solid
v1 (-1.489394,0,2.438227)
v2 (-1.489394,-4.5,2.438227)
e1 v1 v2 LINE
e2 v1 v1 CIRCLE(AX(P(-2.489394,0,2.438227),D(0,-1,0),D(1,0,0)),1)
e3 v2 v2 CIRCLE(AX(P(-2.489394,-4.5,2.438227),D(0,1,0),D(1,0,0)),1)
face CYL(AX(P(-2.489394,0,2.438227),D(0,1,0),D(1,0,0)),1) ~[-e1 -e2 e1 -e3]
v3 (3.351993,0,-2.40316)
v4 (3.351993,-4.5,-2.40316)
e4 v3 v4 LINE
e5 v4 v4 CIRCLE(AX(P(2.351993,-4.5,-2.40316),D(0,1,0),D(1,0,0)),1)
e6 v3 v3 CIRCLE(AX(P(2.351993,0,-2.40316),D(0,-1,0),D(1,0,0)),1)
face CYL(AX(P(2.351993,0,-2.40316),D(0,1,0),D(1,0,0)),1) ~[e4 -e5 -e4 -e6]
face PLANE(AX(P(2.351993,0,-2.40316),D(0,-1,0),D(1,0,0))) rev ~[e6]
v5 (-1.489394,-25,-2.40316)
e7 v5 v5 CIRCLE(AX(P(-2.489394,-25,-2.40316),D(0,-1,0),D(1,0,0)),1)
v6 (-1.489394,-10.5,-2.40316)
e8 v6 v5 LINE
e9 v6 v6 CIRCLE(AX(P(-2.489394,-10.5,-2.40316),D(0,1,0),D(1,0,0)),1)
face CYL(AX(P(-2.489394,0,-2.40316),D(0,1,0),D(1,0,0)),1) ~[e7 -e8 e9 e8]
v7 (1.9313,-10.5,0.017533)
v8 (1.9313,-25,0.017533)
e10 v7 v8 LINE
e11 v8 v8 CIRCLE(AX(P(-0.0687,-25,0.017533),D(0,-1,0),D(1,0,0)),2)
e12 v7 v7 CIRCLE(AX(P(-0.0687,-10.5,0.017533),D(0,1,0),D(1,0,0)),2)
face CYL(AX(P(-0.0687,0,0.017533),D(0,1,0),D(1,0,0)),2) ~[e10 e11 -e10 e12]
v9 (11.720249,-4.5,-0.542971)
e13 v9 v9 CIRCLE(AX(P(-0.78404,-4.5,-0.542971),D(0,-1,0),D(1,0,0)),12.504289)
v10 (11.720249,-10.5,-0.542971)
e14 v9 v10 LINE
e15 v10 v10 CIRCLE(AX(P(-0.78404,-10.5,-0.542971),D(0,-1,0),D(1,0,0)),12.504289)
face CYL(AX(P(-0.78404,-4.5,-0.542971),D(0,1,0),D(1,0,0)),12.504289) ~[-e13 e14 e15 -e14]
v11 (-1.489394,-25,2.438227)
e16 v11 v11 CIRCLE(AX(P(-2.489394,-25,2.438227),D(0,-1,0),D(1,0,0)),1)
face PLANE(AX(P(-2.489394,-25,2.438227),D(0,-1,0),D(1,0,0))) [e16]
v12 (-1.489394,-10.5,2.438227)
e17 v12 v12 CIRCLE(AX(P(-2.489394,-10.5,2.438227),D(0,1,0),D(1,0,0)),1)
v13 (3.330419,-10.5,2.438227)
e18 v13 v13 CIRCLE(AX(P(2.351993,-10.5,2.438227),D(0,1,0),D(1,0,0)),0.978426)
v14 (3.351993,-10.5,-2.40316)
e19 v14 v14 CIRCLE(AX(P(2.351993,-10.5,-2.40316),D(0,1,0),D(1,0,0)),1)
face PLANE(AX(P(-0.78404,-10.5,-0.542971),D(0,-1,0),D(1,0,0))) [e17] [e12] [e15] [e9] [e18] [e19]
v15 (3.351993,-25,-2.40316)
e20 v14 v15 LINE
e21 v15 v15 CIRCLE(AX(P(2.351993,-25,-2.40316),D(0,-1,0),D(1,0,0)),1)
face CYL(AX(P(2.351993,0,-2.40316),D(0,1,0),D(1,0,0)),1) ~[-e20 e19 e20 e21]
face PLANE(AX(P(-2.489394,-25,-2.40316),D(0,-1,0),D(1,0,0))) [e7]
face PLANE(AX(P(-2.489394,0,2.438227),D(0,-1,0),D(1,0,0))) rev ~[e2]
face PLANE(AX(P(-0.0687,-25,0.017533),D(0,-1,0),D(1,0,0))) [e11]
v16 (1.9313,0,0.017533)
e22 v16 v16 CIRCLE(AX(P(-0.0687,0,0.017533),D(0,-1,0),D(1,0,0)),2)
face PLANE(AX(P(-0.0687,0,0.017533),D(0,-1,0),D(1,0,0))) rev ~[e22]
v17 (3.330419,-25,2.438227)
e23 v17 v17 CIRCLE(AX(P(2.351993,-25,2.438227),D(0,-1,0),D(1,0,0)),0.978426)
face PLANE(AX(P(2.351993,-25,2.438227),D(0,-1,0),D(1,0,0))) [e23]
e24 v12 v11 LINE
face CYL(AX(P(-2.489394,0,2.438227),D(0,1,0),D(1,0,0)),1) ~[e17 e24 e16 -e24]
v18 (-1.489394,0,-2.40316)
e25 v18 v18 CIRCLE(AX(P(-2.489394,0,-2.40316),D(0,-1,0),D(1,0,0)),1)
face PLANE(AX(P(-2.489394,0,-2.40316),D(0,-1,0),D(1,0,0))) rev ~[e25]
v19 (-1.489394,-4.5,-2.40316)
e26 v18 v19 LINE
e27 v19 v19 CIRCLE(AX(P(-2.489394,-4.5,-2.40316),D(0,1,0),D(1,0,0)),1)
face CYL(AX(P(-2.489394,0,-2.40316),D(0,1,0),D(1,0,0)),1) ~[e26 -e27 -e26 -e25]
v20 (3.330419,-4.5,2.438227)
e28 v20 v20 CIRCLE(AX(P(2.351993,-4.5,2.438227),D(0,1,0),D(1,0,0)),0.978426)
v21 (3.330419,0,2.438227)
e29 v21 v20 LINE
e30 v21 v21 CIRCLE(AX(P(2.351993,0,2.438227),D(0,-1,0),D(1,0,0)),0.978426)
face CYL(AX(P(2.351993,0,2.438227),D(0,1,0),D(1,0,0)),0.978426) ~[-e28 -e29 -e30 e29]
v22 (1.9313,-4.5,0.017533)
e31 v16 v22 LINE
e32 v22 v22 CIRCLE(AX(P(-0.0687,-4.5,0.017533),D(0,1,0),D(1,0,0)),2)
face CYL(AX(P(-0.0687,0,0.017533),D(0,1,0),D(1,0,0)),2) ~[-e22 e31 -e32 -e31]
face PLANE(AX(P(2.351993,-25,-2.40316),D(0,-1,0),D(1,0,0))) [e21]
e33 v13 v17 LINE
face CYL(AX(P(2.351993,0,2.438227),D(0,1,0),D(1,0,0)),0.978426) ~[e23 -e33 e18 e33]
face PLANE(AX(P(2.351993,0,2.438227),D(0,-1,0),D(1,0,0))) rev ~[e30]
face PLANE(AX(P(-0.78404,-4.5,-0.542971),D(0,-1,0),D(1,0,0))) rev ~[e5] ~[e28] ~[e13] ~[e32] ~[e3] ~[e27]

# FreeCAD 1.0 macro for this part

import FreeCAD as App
import Part
import Sketcher
from FreeCAD import Vector
Q = App.Units.Quantity

doc = App.newDocument("Part")
body = doc.addObject("PartDesign::Body", "Body")

sketch1 = body.newObject("Sketcher::SketchObject", "Sketch")
sketch1.AttachmentSupport = (doc.getObject("XZ_Plane"), [""])
sketch1.MapMode = "FlatFace"
sketch1.addGeometry(Part.Circle(Vector(-14, 23, 0), Vector(0, 0, 1), 13), False)
sketch1.addConstraint([
    Sketcher.Constraint("Diameter", 0, Q("25.008578 mm")),
    Sketcher.Constraint("DistanceX", 0, 3, -1, 1, Q("13.58404 mm")),
    Sketcher.Constraint("DistanceY", -1, 1, 0, 3, Q("22.957029 mm")),
])
pad1 = body.newObject("PartDesign::Pad", "Pad")
pad1.Profile = sketch1
pad1.Length = 6
body2 = doc.addObject("PartDesign::Body", "Body001")
doc.recompute()

body.Placement = App.Placement(Vector(12.8, -4.5, -23.5), App.Rotation(Vector(0, 0, 1), 0))
boolean = body2.newObject("PartDesign::Boolean", "Boolean")
boolean.Type = "Fuse"
boolean.addObjects([body])

sketch2 = body2.newObject("Sketcher::SketchObject", "Sketch001")
sketch2.AttachmentSupport = (doc.getObject("XZ_Plane001"), [""])
sketch2.MapMode = "FlatFace"
sketch2.addGeometry([
    Part.Circle(Vector(-2.5, 2.4, 0), Vector(0, 0, 1), 1),
    Part.Circle(Vector(2.4, 2.4, 0), Vector(0, 0, 1), 1),
    Part.Circle(Vector(-2.5, -2.4, 0), Vector(0, 0, 1), 1),
    Part.Circle(Vector(2.4, -2.4, 0), Vector(0, 0, 1), 1),
    Part.Circle(Vector(-0.1, 0, 0), Vector(0, 0, 1), 2),
], False)
sketch2.addConstraint([
    Sketcher.Constraint("Equal", 0, 2),
    Sketcher.Constraint("Equal", 2, 3),
    Sketcher.Constraint("Horizontal", 0, 3, 1, 3),
    Sketcher.Constraint("Horizontal", 2, 3, 3, 3),
    Sketcher.Constraint("Vertical", 0, 3, 2, 3),
    Sketcher.Constraint("Vertical", 1, 3, 3, 3),
    Sketcher.Constraint("Diameter", 0, Q("2 mm")),
    Sketcher.Constraint("Diameter", 4, Q("4 mm")),
    Sketcher.Constraint("Diameter", 1, Q("1.956852 mm")),
    Sketcher.Constraint("DistanceX", 4, 3, -1, 1, Q("0.0687 mm")),
    Sketcher.Constraint("DistanceY", 2, 3, -1, 1, Q("2.40316 mm")),
    Sketcher.Constraint("DistanceX", 0, 3, -1, 1, Q("2.489394 mm")),
    Sketcher.Constraint("DistanceY", -1, 1, 0, 3, Q("2.438227 mm")),
    Sketcher.Constraint("DistanceX", -1, 1, 1, 3, Q("2.351993 mm")),
    Sketcher.Constraint("DistanceY", -1, 1, 4, 3, Q("0.017533 mm")),
])
pad2 = body2.newObject("PartDesign::Pad", "Pad001")
pad2.Profile = sketch2
pad2.Length = 25

doc.recompute()
